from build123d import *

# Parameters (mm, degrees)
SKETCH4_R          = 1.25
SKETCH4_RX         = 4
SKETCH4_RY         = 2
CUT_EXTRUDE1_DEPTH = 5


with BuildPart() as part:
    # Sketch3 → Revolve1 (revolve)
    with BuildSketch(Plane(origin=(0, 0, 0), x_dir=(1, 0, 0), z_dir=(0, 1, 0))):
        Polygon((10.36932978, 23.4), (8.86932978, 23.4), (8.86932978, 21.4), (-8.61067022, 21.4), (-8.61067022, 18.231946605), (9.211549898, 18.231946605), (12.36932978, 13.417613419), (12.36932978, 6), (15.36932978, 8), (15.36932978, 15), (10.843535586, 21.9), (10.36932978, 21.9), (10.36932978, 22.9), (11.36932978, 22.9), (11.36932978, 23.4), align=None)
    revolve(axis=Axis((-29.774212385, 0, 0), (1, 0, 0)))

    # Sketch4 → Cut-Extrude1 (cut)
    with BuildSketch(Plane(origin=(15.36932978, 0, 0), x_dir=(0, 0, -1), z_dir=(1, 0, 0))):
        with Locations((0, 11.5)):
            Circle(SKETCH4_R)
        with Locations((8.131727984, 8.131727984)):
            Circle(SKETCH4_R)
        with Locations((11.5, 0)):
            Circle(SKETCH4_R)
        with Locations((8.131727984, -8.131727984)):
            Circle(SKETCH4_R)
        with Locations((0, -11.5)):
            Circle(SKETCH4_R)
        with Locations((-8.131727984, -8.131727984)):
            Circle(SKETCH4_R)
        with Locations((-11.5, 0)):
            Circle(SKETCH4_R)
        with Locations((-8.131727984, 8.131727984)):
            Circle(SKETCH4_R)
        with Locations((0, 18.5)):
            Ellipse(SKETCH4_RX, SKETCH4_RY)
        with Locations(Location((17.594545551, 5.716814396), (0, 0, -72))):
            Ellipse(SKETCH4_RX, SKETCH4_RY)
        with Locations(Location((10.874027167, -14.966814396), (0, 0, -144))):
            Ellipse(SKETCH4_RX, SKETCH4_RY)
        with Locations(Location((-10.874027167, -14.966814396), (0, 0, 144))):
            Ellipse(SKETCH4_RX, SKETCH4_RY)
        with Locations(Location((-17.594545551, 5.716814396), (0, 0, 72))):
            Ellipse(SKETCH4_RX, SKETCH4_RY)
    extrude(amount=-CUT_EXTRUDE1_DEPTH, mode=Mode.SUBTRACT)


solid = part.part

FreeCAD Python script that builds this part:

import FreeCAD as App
import Part
import Sketcher

V = App.Vector
Q = App.Units.Quantity

doc = App.newDocument("Part")
body = doc.addObject("PartDesign::Body", "Body")

sketch1 = body.newObject("Sketcher::SketchObject", "Sketch")
sketch1.AttachmentSupport = (doc.getObject("XZ_Plane"), [""])
sketch1.MapMode = "FlatFace"
sketch1.addGeometry([
    Part.LineSegment(V(8.87, -23.4, 0), V(8.87, -21.4, 0)),
    Part.LineSegment(V(8.87, -21.4, 0), V(-8.61, -21.4, 0)),
    Part.LineSegment(V(-8.61, -21.4, 0), V(-8.61, -18.23, 0)),
    Part.LineSegment(V(-8.61, -18.23, 0), V(9.21, -18.23, 0)),
    Part.LineSegment(V(9.21, -18.23, 0), V(12.37, -13.42, 0)),
    Part.LineSegment(V(12.37, -13.42, 0), V(12.37, -6, 0)),
    Part.LineSegment(V(12.37, -6, 0), V(15.37, -8, 0)),
    Part.LineSegment(V(15.37, -8, 0), V(15.37, -15, 0)),
    Part.LineSegment(V(15.37, -15, 0), V(10.84, -21.9, 0)),
    Part.LineSegment(V(10.84, -21.9, 0), V(10.37, -21.9, 0)),
    Part.LineSegment(V(10.37, -21.9, 0), V(10.37, -22.9, 0)),
    Part.LineSegment(V(10.37, -22.9, 0), V(11.37, -22.9, 0)),
    Part.LineSegment(V(11.37, -22.9, 0), V(11.37, -23.4, 0)),
    Part.LineSegment(V(11.37, -23.4, 0), V(8.87, -23.4, 0)),
], False)
sketch1.addConstraint([
    Sketcher.Constraint("Coincident", 0, 2, 1, 1),
    Sketcher.Constraint("Coincident", 1, 2, 2, 1),
    Sketcher.Constraint("Coincident", 2, 2, 3, 1),
    Sketcher.Constraint("Coincident", 3, 2, 4, 1),
    Sketcher.Constraint("Coincident", 4, 2, 5, 1),
    Sketcher.Constraint("Coincident", 5, 2, 6, 1),
    Sketcher.Constraint("Coincident", 6, 2, 7, 1),
    Sketcher.Constraint("Coincident", 7, 2, 8, 1),
    Sketcher.Constraint("Coincident", 8, 2, 9, 1),
    Sketcher.Constraint("Coincident", 9, 2, 10, 1),
    Sketcher.Constraint("Coincident", 10, 2, 11, 1),
    Sketcher.Constraint("Coincident", 11, 2, 12, 1),
    Sketcher.Constraint("Coincident", 12, 2, 13, 1),
    Sketcher.Constraint("Coincident", 13, 2, 0, 1),
    Sketcher.Constraint("Vertical", 0),
    Sketcher.Constraint("Horizontal", 1),
    Sketcher.Constraint("Vertical", 2),
    Sketcher.Constraint("Horizontal", 3),
    Sketcher.Constraint("Vertical", 5),
    Sketcher.Constraint("Vertical", 7),
    Sketcher.Constraint("Horizontal", 9),
    Sketcher.Constraint("Vertical", 10),
    Sketcher.Constraint("Horizontal", 11),
    Sketcher.Constraint("Vertical", 12),
    Sketcher.Constraint("Horizontal", 13),
    Sketcher.Constraint("Parallel", 4, 8),
    Sketcher.Constraint("Equal", 11, 10),
    Sketcher.Constraint("DistanceX", 11, 1, 11, 2, Q("1 mm")),
    Sketcher.Constraint("DistanceY", 0, 1, 0, 2, Q("2 mm")),
    Sketcher.Constraint("DistanceY", 7, 2, 7, 1, Q("7 mm")),
    Sketcher.Constraint("DistanceX", 13, 2, 13, 1, Q("2.5 mm")),
    Sketcher.Constraint("DistanceY", 12, 2, 12, 1, Q("0.5 mm")),
    Sketcher.Constraint("DistanceY", 5, 2, -1, 1, Q("6 mm")),
    Sketcher.Constraint("DistanceY", 6, 2, -1, 1, Q("8 mm")),
    Sketcher.Constraint("DistanceX", 5, 2, 6, 2, Q("3 mm")),
    Sketcher.Constraint("DistanceX", 9, 2, 7, 2, Q("5 mm")),
    Sketcher.Constraint("DistanceX", 1, 2, 1, 1, Q("17.48 mm")),
    Sketcher.Constraint("DistanceY", 0, 2, -1, 1, Q("21.4 mm")),
    Sketcher.Constraint("DistanceX", 3, 1, 3, 2, Q("17.82222 mm")),
    Sketcher.Constraint("Distance", 4, Q("5.75755 mm")),
    Sketcher.Constraint("DistanceY", 2, 1, 2, 2, Q("3.168053 mm")),
    Sketcher.Constraint("DistanceX", -1, 1, 0, 2, Q("8.86933 mm")),
])
revolution = body.newObject("PartDesign::Revolution", "Revolution")
revolution.Profile = sketch1
revolution.ReferenceAxis = (sketch1, ["H_Axis"])
revolution.Angle = 360

sketch2 = body.newObject("Sketcher::SketchObject", "Sketch001")
sketch2.AttachmentSupport = (doc.getObject("YZ_Plane"), [""])
sketch2.MapMode = "FlatFace"
sketch2.AttachmentOffset = App.Placement(V(0, 0, 15.36933), App.Rotation())
sketch2.addGeometry([
    Part.Circle(V(11.5, 0, 0), V(0, 0, 1), 1.25),
    Part.Circle(V(8.131728, -8.131728, 0), V(0, 0, 1), 1.25),
    Part.Circle(V(0, -11.5, 0), V(0, 0, 1), 1.25),
    Part.Circle(V(-8.131728, -8.131728, 0), V(0, 0, 1), 1.25),
    Part.Circle(V(-11.5, 0, 0), V(0, 0, 1), 1.25),
    Part.Circle(V(-8.131728, 8.131728, 0), V(0, 0, 1), 1.25),
    Part.Circle(V(0, 11.5, 0), V(0, 0, 1), 1.25),
    Part.Circle(V(8.131728, 8.131728, 0), V(0, 0, 1), 1.25),
    Part.Ellipse(V(18.5, -4, 0), V(20.5, 0, 0), V(18.5, 0, 0)),
    Part.Ellipse(V(1.912588, -18.830614, 0), V(6.334848, -19.496659, 0), V(5.716814, -17.594546, 0)),
    Part.Ellipse(V(-17.317955, -7.637959, 0), V(-16.584848, -12.049598, 0), V(-14.966814, -10.874027, 0)),
    Part.Ellipse(V(-12.615673, 14.110095, 0), V(-16.584848, 12.049598, 0), V(-14.966814, 10.874027, 0)),
    Part.Ellipse(V(9.52104, 16.358478, 0), V(6.334848, 19.496659, 0), V(5.716814, 17.594546, 0)),
], False)
sketch2.addConstraint([
    Sketcher.Constraint("Block", 8),
    Sketcher.Constraint("Block", 9),
    Sketcher.Constraint("Block", 10),
    Sketcher.Constraint("Block", 11),
    Sketcher.Constraint("Block", 12),
    Sketcher.Constraint("Equal", 0, 1),
    Sketcher.Constraint("Equal", 1, 2),
    Sketcher.Constraint("Equal", 2, 3),
    Sketcher.Constraint("Equal", 3, 4),
    Sketcher.Constraint("Equal", 4, 5),
    Sketcher.Constraint("Equal", 5, 6),
    Sketcher.Constraint("Equal", 6, 7),
    Sketcher.Constraint("Symmetric", 0, 3, 4, 3, -1, 1),
    Sketcher.Constraint("Symmetric", 1, 3, 5, 3, -1, 1),
    Sketcher.Constraint("Symmetric", 2, 3, 6, 3, -1, 1),
    Sketcher.Constraint("Symmetric", 3, 3, 7, 3, -1, 1),
    Sketcher.Constraint("Symmetric", 1, 3, 3, 3, -2),
    Sketcher.Constraint("PointOnObject", 0, 3, -1),
    Sketcher.Constraint("PointOnObject", 2, 3, -2),
    Sketcher.Constraint("Diameter", 0, Q("2.5 mm")),
    Sketcher.Constraint("DistanceX", 4, 3, 0, 3, Q("23 mm")),
    Sketcher.Constraint("DistanceY", 2, 3, -1, 1, Q("11.5 mm")),
    Sketcher.Constraint("DistanceX", -1, 1, 1, 3, Q("8.131728 mm")),
    Sketcher.Constraint("DistanceY", 1, 3, -1, 1, Q("8.131728 mm")),
])
pocket1 = body.newObject("PartDesign::Pocket", "Pocket")
pocket1.Profile = sketch2
pocket1.Length = 5

doc.recompute()
